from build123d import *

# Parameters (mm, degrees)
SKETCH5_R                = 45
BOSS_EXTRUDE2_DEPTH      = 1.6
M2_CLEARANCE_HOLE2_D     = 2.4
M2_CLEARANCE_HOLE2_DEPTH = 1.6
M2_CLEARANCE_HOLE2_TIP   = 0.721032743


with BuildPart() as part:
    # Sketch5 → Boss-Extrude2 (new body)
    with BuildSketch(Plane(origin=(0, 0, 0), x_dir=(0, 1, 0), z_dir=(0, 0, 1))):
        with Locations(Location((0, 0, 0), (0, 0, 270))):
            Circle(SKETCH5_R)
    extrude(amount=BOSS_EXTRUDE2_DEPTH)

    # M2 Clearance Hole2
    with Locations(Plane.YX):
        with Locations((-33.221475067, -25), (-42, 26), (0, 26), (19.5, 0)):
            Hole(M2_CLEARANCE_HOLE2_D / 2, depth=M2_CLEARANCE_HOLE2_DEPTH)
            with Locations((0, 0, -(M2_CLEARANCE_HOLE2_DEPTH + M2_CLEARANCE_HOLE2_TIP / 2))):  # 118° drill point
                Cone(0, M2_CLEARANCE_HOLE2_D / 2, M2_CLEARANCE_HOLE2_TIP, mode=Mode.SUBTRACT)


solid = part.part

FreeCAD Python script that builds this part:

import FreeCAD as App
import Part
import Sketcher

V = App.Vector

doc = App.newDocument("Part")
body = doc.addObject("PartDesign::Body", "Body")

# Sketch on XY plane
sketch1 = body.newObject("Sketcher::SketchObject", "Sketch")
sketch1.AttachmentSupport = (doc.getObject("XY_Plane"), [""])
sketch1.MapMode = "FlatFace"
sketch1.addGeometry(Part.Circle(V(0, 0, 0), V(0, 0, 1), 45), False)
sketch1.addConstraint(Sketcher.Constraint("Coincident", 0, 3, -1, 1))
sketch1.addConstraint(Sketcher.Constraint("Diameter", 0, 90.0))
pad1 = body.newObject("PartDesign::Pad", "Pad")
pad1.Profile = sketch1
pad1.Length = 1.6

# Sketch on XY plane
sketch2 = body.newObject("Sketcher::SketchObject", "Sketch001")
sketch2.AttachmentSupport = (doc.getObject("XY_Plane"), [""])
sketch2.MapMode = "FlatFace"
sketch2.addGeometry(Part.Circle(V(-25, -33.2, 0), V(0, 0, 1), 1.2), False)
sketch2.addGeometry(Part.Circle(V(26, -42, 0), V(0, 0, 1), 1.2), False)
sketch2.addGeometry(Part.Circle(V(26, 0, 0), V(0, 0, 1), 1.2), False)
sketch2.addGeometry(Part.Circle(V(0, 19.5, 0), V(0, 0, 1), 1.2), False)
sketch2.addConstraint(Sketcher.Constraint("Equal", 0, 1))
sketch2.addConstraint(Sketcher.Constraint("Equal", 1, 2))
sketch2.addConstraint(Sketcher.Constraint("Equal", 2, 3))
sketch2.addConstraint(Sketcher.Constraint("PointOnObject", 2, 3, -1))
sketch2.addConstraint(Sketcher.Constraint("PointOnObject", 3, 3, -2))
sketch2.addConstraint(Sketcher.Constraint("Vertical", 1, 3, 2, 3))
sketch2.addConstraint(Sketcher.Constraint("Diameter", 0, 2.4))
sketch2.addConstraint(Sketcher.Constraint("DistanceX", 0, 3, -1, 1, 25.0))
sketch2.addConstraint(Sketcher.Constraint("DistanceX", -1, 1, 1, 3, 26.0))
sketch2.addConstraint(Sketcher.Constraint("DistanceY", 1, 3, -1, 1, 42.0))
sketch2.addConstraint(Sketcher.Constraint("DistanceY", -1, 1, 3, 3, 19.5))
sketch2.addConstraint(Sketcher.Constraint("DistanceY", 0, 3, -1, 1, 33.221475))
doc.recompute()
hole = body.newObject("PartDesign::Hole", "Hole")
hole.Profile = sketch2
hole.ThreadType = "None"
hole.Diameter = 2.4
hole.DepthType = "Dimension"
hole.Depth = 1.6
hole.DrillPoint = "Angled"
hole.DrillPointAngle = 118
hole.Reversed = True

doc.recompute()
